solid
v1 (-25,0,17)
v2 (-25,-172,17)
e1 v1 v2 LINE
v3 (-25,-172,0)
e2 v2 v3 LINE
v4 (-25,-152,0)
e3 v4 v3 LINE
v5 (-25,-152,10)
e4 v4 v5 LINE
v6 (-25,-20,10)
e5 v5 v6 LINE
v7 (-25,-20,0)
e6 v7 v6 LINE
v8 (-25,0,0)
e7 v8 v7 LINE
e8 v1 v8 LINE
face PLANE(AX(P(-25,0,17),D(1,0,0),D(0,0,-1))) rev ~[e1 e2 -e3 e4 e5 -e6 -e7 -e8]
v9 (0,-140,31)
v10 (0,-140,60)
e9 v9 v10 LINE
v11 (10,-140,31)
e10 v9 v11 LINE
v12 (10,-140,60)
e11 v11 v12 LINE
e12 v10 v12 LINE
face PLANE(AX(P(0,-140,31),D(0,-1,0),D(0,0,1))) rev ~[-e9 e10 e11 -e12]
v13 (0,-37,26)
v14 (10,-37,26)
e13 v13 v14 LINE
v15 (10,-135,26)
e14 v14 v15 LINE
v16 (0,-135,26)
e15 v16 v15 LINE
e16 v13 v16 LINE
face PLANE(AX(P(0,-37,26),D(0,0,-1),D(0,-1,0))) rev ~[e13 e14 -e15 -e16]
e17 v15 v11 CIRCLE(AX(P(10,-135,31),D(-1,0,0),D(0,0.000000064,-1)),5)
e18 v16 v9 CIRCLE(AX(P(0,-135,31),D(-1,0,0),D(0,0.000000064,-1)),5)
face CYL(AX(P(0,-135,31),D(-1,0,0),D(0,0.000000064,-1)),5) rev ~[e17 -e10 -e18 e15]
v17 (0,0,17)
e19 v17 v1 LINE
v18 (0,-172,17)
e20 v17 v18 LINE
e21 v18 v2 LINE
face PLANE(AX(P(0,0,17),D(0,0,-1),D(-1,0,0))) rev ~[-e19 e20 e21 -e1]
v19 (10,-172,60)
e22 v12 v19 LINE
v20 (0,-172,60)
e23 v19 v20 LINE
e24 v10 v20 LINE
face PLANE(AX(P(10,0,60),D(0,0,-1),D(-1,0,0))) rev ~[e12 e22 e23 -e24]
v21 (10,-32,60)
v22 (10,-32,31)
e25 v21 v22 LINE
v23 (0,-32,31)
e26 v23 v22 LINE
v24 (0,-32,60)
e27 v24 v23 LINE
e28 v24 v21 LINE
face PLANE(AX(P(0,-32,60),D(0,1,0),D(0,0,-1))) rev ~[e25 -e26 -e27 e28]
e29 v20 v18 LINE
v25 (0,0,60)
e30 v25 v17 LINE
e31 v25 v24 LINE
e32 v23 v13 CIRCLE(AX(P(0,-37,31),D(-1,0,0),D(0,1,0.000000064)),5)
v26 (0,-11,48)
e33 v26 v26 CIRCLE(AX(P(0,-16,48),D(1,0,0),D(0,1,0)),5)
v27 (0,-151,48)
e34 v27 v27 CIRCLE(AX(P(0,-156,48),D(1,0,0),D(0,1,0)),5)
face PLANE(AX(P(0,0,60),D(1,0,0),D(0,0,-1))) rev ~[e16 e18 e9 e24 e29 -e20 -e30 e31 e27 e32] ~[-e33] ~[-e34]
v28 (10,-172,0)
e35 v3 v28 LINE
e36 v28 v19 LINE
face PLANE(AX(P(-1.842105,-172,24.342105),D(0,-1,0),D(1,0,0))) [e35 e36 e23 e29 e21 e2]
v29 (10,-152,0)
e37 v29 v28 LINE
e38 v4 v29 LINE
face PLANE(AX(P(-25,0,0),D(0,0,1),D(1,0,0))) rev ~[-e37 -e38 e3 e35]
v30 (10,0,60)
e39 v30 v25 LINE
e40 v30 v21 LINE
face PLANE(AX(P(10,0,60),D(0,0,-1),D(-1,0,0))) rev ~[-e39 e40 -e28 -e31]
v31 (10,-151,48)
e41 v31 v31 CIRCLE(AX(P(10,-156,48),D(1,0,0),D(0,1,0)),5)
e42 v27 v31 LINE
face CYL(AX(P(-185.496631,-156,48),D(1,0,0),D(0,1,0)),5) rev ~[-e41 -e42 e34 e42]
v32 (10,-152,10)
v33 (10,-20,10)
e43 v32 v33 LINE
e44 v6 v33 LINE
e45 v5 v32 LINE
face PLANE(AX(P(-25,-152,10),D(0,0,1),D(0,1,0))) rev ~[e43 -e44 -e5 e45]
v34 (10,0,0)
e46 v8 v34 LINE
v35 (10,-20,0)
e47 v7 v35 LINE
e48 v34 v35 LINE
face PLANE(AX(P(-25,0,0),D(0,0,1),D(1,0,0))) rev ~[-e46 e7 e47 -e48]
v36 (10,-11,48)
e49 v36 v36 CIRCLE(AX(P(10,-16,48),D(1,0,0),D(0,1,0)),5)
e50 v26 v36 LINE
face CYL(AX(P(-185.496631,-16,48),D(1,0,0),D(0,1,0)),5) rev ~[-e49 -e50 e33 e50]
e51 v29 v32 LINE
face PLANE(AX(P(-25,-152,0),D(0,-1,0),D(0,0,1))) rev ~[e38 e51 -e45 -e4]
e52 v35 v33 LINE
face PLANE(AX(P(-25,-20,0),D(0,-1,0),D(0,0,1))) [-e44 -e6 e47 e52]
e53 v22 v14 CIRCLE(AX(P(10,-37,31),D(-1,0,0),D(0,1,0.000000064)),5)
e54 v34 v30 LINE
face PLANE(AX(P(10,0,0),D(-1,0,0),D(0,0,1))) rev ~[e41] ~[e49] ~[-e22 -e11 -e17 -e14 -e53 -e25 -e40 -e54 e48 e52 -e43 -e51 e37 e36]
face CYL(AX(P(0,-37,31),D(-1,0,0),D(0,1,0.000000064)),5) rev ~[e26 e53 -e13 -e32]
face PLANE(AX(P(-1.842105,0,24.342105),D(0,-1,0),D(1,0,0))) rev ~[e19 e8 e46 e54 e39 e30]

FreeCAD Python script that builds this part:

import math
import FreeCAD as App
import Part
import Sketcher

doc = App.newDocument("Part")
params = doc.addObject("Spreadsheet::Sheet", "Params")
for row, (alias, value) in enumerate([
    ("sketch1_width", "35 mm"),
    ("sketch1_width2", "10 mm"),
    ("sketch1_height", "60 mm"),
    ("sketch1_height2", "43 mm"),
    ("pad1_length", "172 mm"),
    ("sketch2_radius", "5 mm"),
    ("sketch2_width", "108 mm"),
    ("sketch2_height", "29 mm"),
    ("pocket1_length", "10 mm"),
    ("sketch3_width", "132 mm"),
    ("sketch3_height", "10 mm"),
    ("pocket2_length", "35 mm"),
    ("sketch4_diameter", "10 mm"),
    ("hole_diameter", "10 mm"),
], start=1):
    params.set(f"A{row}", alias)
    params.set(f"B{row}", "=" + value)
    params.setAlias(f"B{row}", alias)

body = doc.addObject("PartDesign::Body", "Body")

# Sketch on XZ plane
sketch1 = body.newObject("Sketcher::SketchObject", "Sketch")
sketch1.AttachmentSupport = (doc.getObject("XZ_Plane"), [""])
sketch1.MapMode = "FlatFace"
sketch1.addGeometry(Part.LineSegment(App.Vector(-25, 0, 0), App.Vector(10, 0, 0)), False)
sketch1.addGeometry(Part.LineSegment(App.Vector(10, 0, 0), App.Vector(10, 60, 0)), False)
sketch1.addGeometry(Part.LineSegment(App.Vector(10, 60, 0), App.Vector(0, 60, 0)), False)
sketch1.addGeometry(Part.LineSegment(App.Vector(0, 60, 0), App.Vector(0, 17, 0)), False)
sketch1.addGeometry(Part.LineSegment(App.Vector(0, 17, 0), App.Vector(-25, 17, 0)), False)
sketch1.addGeometry(Part.LineSegment(App.Vector(-25, 17, 0), App.Vector(-25, 0, 0)), False)
sketch1.addConstraint(Sketcher.Constraint("Coincident", 0, 2, 1, 1))
sketch1.addConstraint(Sketcher.Constraint("Coincident", 1, 2, 2, 1))
sketch1.addConstraint(Sketcher.Constraint("Coincident", 2, 2, 3, 1))
sketch1.addConstraint(Sketcher.Constraint("Coincident", 3, 2, 4, 1))
sketch1.addConstraint(Sketcher.Constraint("Coincident", 4, 2, 5, 1))
sketch1.addConstraint(Sketcher.Constraint("Coincident", 5, 2, 0, 1))
sketch1.addConstraint(Sketcher.Constraint("Horizontal", 0))
sketch1.addConstraint(Sketcher.Constraint("Vertical", 1))
sketch1.addConstraint(Sketcher.Constraint("Horizontal", 2))
sketch1.addConstraint(Sketcher.Constraint("Vertical", 3))
sketch1.addConstraint(Sketcher.Constraint("Horizontal", 4))
sketch1.addConstraint(Sketcher.Constraint("Vertical", 5))
sketch1.addConstraint(Sketcher.Constraint("PointOnObject", 0, 2, -1))
sketch1.addConstraint(Sketcher.Constraint("PointOnObject", 2, 2, -2))
sketch1.addConstraint(Sketcher.Constraint("DistanceX", 0, 1, 0, 2, 35.0))
sketch1.addConstraint(Sketcher.Constraint("DistanceX", 2, 2, 2, 1, 10.0))
sketch1.addConstraint(Sketcher.Constraint("DistanceY", 1, 1, 1, 2, 60.0))
sketch1.addConstraint(Sketcher.Constraint("DistanceY", 3, 2, 3, 1, 43.0))
sketch1.setExpression("Constraints[14]", "Params.sketch1_width")
sketch1.setExpression("Constraints[15]", "Params.sketch1_width2")
sketch1.setExpression("Constraints[16]", "Params.sketch1_height")
sketch1.setExpression("Constraints[17]", "Params.sketch1_height2")
pad1 = body.newObject("PartDesign::Pad", "Pad")
pad1.Profile = sketch1
pad1.setExpression("Length", "Params.pad1_length")

# Sketch on YZ plane
sketch2 = body.newObject("Sketcher::SketchObject", "Sketch001")
sketch2.AttachmentSupport = (doc.getObject("YZ_Plane"), [""])
sketch2.MapMode = "FlatFace"
sketch2.addGeometry(Part.LineSegment(App.Vector(-140, 31, 0), App.Vector(-140, 60, 0)), False)
sketch2.addGeometry(Part.LineSegment(App.Vector(-140, 60, 0), App.Vector(-32, 60, 0)), False)
sketch2.addGeometry(Part.LineSegment(App.Vector(-32, 60, 0), App.Vector(-32, 31, 0)), False)
sketch2.addGeometry(Part.ArcOfCircle(Part.Circle(App.Vector(-37, 31, 0), App.Vector(0, 0, 1), 5), math.radians(-90), math.radians(0)), False)
sketch2.addGeometry(Part.LineSegment(App.Vector(-37, 26, 0), App.Vector(-135, 26, 0)), False)
sketch2.addGeometry(Part.ArcOfCircle(Part.Circle(App.Vector(-135, 31, 0), App.Vector(0, 0, 1), 5), math.radians(180), math.radians(270)), False)
sketch2.addConstraint(Sketcher.Constraint("Coincident", 0, 2, 1, 1))
sketch2.addConstraint(Sketcher.Constraint("Coincident", 1, 2, 2, 1))
sketch2.addConstraint(Sketcher.Constraint("Tangent", 2, 2, 3, 2))
sketch2.addConstraint(Sketcher.Constraint("Tangent", 3, 1, 4, 1))
sketch2.addConstraint(Sketcher.Constraint("Tangent", 4, 2, 5, 2))
sketch2.addConstraint(Sketcher.Constraint("Tangent", 5, 1, 0, 1))
sketch2.addConstraint(Sketcher.Constraint("Vertical", 0))
sketch2.addConstraint(Sketcher.Constraint("Horizontal", 1))
sketch2.addConstraint(Sketcher.Constraint("Vertical", 2))
sketch2.addConstraint(Sketcher.Constraint("Horizontal", 4))
sketch2.addConstraint(Sketcher.Constraint("Equal", 3, 5))
sketch2.addConstraint(Sketcher.Constraint("Radius", 3, 5.0))
sketch2.addConstraint(Sketcher.Constraint("DistanceX", 1, 1, 1, 2, 108.0))
sketch2.addConstraint(Sketcher.Constraint("DistanceY", 0, 1, 0, 2, 29.0))
sketch2.addConstraint(Sketcher.Constraint("DistanceX", 3, 3, -1, 1, 37.0))
sketch2.addConstraint(Sketcher.Constraint("DistanceY", -1, 1, 3, 3, 31.0))
sketch2.setExpression("Constraints[11]", "Params.sketch2_radius")
sketch2.setExpression("Constraints[12]", "Params.sketch2_width")
sketch2.setExpression("Constraints[13]", "Params.sketch2_height")
pocket1 = body.newObject("PartDesign::Pocket", "Pocket")
pocket1.Profile = sketch2
pocket1.setExpression("Length", "Params.pocket1_length")
pocket1.Reversed = True

# Sketch on YZ plane
sketch3 = body.newObject("Sketcher::SketchObject", "Sketch002")
sketch3.AttachmentSupport = (doc.getObject("YZ_Plane"), [""])
sketch3.MapMode = "FlatFace"
sketch3.AttachmentOffset = App.Placement(App.Vector(0, 0, -25), App.Rotation())
sketch3.addGeometry(Part.LineSegment(App.Vector(-152, 10, 0), App.Vector(-152, 0, 0)), False)
sketch3.addGeometry(Part.LineSegment(App.Vector(-152, 0, 0), App.Vector(-20, 0, 0)), False)
sketch3.addGeometry(Part.LineSegment(App.Vector(-20, 0, 0), App.Vector(-20, 10, 0)), False)
sketch3.addGeometry(Part.LineSegment(App.Vector(-20, 10, 0), App.Vector(-152, 10, 0)), False)
sketch3.addConstraint(Sketcher.Constraint("Coincident", 0, 2, 1, 1))
sketch3.addConstraint(Sketcher.Constraint("Coincident", 1, 2, 2, 1))
sketch3.addConstraint(Sketcher.Constraint("Coincident", 2, 2, 3, 1))
sketch3.addConstraint(Sketcher.Constraint("Coincident", 3, 2, 0, 1))
sketch3.addConstraint(Sketcher.Constraint("Vertical", 0))
sketch3.addConstraint(Sketcher.Constraint("Horizontal", 1))
sketch3.addConstraint(Sketcher.Constraint("Vertical", 2))
sketch3.addConstraint(Sketcher.Constraint("Horizontal", 3))
sketch3.addConstraint(Sketcher.Constraint("PointOnObject", 0, 2, -1))
sketch3.addConstraint(Sketcher.Constraint("DistanceX", 1, 1, 1, 2, 132.0))
sketch3.addConstraint(Sketcher.Constraint("DistanceY", 0, 2, 0, 1, 10.0))
sketch3.addConstraint(Sketcher.Constraint("DistanceX", 0, 2, -1, 1, 152.0))
sketch3.setExpression("Constraints[9]", "Params.sketch3_width")
sketch3.setExpression("Constraints[10]", "Params.sketch3_height")
pocket2 = body.newObject("PartDesign::Pocket", "Pocket001")
pocket2.Profile = sketch3
pocket2.setExpression("Length", "Params.pocket2_length")
pocket2.Reversed = True

# Sketch on YZ plane
sketch4 = body.newObject("Sketcher::SketchObject", "Sketch003")
sketch4.AttachmentSupport = (doc.getObject("YZ_Plane"), [""])
sketch4.MapMode = "FlatFace"
sketch4.addGeometry(Part.Circle(App.Vector(-16, 48, 0), App.Vector(0, 0, 1), 5), False)
sketch4.addGeometry(Part.Circle(App.Vector(-156, 48, 0), App.Vector(0, 0, 1), 5), False)
sketch4.addConstraint(Sketcher.Constraint("Equal", 0, 1))
sketch4.addConstraint(Sketcher.Constraint("Horizontal", 0, 3, 1, 3))
sketch4.addConstraint(Sketcher.Constraint("Diameter", 0, 10.0))
sketch4.addConstraint(Sketcher.Constraint("DistanceX", 0, 3, -1, 1, 16.0))
sketch4.addConstraint(Sketcher.Constraint("DistanceY", -1, 1, 0, 3, 48.0))
sketch4.addConstraint(Sketcher.Constraint("DistanceX", 1, 3, -1, 1, 156.0))
sketch4.setExpression("Constraints[2]", "Params.sketch4_diameter")
doc.recompute()
hole = body.newObject("PartDesign::Hole", "Hole")
hole.Profile = sketch4
hole.ThreadType = "None"
hole.setExpression("Diameter", "Params.hole_diameter")
hole.DepthType = "ThroughAll"
hole.Reversed = True

doc.recompute()
